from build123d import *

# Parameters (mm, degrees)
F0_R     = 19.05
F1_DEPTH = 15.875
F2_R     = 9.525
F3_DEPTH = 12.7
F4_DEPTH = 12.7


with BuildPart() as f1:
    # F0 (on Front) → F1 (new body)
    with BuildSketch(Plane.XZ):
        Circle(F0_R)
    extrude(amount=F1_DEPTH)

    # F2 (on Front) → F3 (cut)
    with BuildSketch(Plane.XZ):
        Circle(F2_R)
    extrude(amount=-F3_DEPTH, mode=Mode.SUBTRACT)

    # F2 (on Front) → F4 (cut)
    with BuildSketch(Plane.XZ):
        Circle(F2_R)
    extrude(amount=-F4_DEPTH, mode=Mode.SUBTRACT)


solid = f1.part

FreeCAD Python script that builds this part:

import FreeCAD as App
import Part
import Sketcher

V = App.Vector
Q = App.Units.Quantity

doc = App.newDocument("Part")
body = doc.addObject("PartDesign::Body", "Body")

# Sketch on XZ plane
sketch1 = doc.addObject("Sketcher::SketchObject", "Sketch")
body.addObject(sketch1)
sketch1.AttachmentSupport = (doc.XZ_Plane, [""])
sketch1.MapMode = "FlatFace"
sketch1.addGeometry(Part.Circle(V(0, 0, 0), V(0, 0, 1), 19), False)
sketch1.addConstraint([
    Sketcher.Constraint("Coincident", 0, 3, -1, 1),
    Sketcher.Constraint("Diameter", 0, Q("1.5 in")),
])
pad1 = doc.addObject("PartDesign::Pad", "Pad")
body.addObject(pad1)
pad1.Profile = sketch1
pad1.Length = Q("0.625 in")

# Sketch on XZ plane
sketch2 = doc.addObject("Sketcher::SketchObject", "Sketch001")
body.addObject(sketch2)
sketch2.AttachmentSupport = (doc.XZ_Plane, [""])
sketch2.MapMode = "FlatFace"
sketch2.addGeometry(Part.Circle(V(0, 0, 0), V(0, 0, 1), 10), False)
sketch2.addConstraint([
    Sketcher.Constraint("Coincident", 0, 3, -1, 1),
    Sketcher.Constraint("Diameter", 0, Q("0.75 in")),
])
pocket1 = doc.addObject("PartDesign::Pocket", "Pocket")
body.addObject(pocket1)
pocket1.Profile = sketch2
pocket1.Length = Q("0.5 in")

# Sketch on XZ plane
sketch3 = doc.addObject("Sketcher::SketchObject", "Sketch002")
body.addObject(sketch3)
sketch3.AttachmentSupport = (doc.XZ_Plane, [""])
sketch3.MapMode = "FlatFace"
sketch3.addGeometry(Part.Circle(V(0, 0, 0), V(0, 0, 1), 10), False)
sketch3.addConstraint([
    Sketcher.Constraint("Coincident", 0, 3, -1, 1),
    Sketcher.Constraint("Diameter", 0, Q("0.75 in")),
])
pocket2 = doc.addObject("PartDesign::Pocket", "Pocket001")
body.addObject(pocket2)
pocket2.Profile = sketch3
pocket2.Length = Q("0.5 in")

doc.recompute()
